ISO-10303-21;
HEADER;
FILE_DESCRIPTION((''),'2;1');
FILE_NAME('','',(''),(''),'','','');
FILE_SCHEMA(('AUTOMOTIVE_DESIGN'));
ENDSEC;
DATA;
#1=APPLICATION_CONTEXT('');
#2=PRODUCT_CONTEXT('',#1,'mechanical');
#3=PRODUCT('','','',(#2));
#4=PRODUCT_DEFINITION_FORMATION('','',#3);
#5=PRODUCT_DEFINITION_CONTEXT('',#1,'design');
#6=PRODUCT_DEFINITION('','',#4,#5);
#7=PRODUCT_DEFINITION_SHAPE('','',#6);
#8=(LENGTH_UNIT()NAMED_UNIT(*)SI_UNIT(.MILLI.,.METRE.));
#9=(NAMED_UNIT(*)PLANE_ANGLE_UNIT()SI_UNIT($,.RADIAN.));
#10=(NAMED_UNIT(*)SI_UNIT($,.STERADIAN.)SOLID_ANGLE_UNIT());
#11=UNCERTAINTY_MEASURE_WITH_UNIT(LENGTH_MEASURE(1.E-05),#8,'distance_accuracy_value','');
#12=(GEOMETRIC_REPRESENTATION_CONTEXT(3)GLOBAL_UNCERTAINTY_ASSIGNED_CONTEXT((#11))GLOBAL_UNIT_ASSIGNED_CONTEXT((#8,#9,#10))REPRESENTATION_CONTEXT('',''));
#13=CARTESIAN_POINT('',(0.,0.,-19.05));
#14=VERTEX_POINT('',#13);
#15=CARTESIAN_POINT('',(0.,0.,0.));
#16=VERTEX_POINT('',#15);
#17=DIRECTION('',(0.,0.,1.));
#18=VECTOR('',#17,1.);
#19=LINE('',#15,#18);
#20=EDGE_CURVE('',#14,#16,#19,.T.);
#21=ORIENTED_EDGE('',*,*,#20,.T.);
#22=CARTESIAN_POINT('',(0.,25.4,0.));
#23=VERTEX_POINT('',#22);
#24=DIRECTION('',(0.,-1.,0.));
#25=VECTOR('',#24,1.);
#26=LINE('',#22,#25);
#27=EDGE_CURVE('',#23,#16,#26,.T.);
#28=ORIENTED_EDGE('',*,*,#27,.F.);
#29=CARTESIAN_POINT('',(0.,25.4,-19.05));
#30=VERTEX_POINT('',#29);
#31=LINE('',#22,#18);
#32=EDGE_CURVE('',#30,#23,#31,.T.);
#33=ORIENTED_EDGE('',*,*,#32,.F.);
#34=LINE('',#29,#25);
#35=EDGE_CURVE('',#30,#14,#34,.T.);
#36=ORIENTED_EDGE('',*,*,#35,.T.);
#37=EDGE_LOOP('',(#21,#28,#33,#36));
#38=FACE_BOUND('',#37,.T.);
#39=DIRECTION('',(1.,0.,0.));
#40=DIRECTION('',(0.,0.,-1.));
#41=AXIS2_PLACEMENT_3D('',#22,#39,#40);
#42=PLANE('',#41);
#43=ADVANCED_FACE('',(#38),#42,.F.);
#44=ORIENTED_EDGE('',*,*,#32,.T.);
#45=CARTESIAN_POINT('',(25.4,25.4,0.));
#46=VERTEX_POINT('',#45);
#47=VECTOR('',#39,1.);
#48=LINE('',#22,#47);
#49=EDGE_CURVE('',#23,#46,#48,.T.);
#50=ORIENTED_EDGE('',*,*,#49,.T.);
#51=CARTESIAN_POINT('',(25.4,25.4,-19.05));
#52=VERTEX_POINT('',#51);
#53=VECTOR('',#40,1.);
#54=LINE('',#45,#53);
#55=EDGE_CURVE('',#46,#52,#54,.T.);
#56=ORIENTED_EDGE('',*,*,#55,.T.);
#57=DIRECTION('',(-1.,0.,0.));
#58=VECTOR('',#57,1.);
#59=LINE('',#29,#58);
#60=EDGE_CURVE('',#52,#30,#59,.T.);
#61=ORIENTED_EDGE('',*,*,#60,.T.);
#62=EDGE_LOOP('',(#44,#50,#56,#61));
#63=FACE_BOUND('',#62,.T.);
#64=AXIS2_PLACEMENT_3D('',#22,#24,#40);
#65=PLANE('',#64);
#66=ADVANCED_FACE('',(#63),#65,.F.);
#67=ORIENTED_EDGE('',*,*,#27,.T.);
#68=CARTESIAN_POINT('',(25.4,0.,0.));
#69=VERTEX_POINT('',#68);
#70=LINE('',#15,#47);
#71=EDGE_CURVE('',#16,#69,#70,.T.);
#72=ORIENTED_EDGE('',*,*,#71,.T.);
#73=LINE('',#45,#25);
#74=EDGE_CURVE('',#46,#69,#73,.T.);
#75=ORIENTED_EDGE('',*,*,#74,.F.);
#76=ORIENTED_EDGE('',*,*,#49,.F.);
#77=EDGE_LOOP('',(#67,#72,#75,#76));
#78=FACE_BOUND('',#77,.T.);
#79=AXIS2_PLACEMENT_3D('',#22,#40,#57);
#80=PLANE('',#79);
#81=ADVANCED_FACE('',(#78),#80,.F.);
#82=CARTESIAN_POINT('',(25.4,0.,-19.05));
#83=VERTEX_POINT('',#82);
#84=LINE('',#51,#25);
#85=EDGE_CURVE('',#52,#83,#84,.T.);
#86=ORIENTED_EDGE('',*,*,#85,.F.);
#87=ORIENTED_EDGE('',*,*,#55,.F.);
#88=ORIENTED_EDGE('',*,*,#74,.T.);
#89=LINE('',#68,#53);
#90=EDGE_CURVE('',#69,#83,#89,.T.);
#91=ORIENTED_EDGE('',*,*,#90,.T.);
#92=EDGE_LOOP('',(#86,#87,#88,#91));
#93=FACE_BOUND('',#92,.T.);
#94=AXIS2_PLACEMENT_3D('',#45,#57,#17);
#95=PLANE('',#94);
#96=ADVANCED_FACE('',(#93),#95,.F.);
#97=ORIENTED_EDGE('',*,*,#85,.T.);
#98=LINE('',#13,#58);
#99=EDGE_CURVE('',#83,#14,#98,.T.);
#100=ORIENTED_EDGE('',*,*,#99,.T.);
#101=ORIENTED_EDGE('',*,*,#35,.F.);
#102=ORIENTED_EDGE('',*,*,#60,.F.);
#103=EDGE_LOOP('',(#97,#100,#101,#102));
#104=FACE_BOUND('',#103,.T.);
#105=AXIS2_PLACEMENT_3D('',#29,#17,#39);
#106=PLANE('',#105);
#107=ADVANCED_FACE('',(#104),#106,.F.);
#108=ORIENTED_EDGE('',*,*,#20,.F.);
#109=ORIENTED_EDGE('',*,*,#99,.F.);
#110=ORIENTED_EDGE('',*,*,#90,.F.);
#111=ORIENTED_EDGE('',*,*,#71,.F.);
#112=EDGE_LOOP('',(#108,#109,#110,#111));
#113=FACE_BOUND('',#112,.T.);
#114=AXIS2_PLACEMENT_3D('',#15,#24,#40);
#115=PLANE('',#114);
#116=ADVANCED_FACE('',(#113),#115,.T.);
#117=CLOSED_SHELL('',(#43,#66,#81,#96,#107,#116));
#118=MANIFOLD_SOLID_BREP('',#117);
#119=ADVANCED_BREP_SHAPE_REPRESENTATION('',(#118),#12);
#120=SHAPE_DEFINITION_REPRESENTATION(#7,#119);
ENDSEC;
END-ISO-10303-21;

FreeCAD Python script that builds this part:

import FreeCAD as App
import Part
import Sketcher
from FreeCAD import Vector
Q = App.Units.Quantity

doc = App.newDocument("Part")
body = doc.addObject("PartDesign::Body", "Body")

# Sketch on XZ plane
sketch1 = body.newObject("Sketcher::SketchObject", "Sketch")
sketch1.AttachmentSupport = (doc.getObject("XZ_Plane"), [""])
sketch1.MapMode = "FlatFace"
sketch1.addGeometry([
    Part.LineSegment(Vector(0, -19, 0), Vector(0, 0, 0)),
    Part.LineSegment(Vector(0, 0, 0), Vector(25, 0, 0)),
    Part.LineSegment(Vector(25, 0, 0), Vector(25, -19, 0)),
    Part.LineSegment(Vector(25, -19, 0), Vector(0, -19, 0)),
], False)
sketch1.addConstraint([
    Sketcher.Constraint("Coincident", 0, 2, 1, 1),
    Sketcher.Constraint("Coincident", 1, 2, 2, 1),
    Sketcher.Constraint("Coincident", 2, 2, 3, 1),
    Sketcher.Constraint("Coincident", 3, 2, 0, 1),
    Sketcher.Constraint("Vertical", 0),
    Sketcher.Constraint("Horizontal", 1),
    Sketcher.Constraint("Vertical", 2),
    Sketcher.Constraint("Horizontal", 3),
    Sketcher.Constraint("Coincident", 0, 2, -1, 1),
    Sketcher.Constraint("DistanceX", 1, 1, 1, 2, Q("1 in")),
    Sketcher.Constraint("DistanceY", 0, 1, 0, 2, Q("0.75 in")),
])
pad1 = body.newObject("PartDesign::Pad", "Pad")
pad1.Profile = sketch1
pad1.Length = Q("1 in")
pad1.Reversed = True

doc.recompute()
